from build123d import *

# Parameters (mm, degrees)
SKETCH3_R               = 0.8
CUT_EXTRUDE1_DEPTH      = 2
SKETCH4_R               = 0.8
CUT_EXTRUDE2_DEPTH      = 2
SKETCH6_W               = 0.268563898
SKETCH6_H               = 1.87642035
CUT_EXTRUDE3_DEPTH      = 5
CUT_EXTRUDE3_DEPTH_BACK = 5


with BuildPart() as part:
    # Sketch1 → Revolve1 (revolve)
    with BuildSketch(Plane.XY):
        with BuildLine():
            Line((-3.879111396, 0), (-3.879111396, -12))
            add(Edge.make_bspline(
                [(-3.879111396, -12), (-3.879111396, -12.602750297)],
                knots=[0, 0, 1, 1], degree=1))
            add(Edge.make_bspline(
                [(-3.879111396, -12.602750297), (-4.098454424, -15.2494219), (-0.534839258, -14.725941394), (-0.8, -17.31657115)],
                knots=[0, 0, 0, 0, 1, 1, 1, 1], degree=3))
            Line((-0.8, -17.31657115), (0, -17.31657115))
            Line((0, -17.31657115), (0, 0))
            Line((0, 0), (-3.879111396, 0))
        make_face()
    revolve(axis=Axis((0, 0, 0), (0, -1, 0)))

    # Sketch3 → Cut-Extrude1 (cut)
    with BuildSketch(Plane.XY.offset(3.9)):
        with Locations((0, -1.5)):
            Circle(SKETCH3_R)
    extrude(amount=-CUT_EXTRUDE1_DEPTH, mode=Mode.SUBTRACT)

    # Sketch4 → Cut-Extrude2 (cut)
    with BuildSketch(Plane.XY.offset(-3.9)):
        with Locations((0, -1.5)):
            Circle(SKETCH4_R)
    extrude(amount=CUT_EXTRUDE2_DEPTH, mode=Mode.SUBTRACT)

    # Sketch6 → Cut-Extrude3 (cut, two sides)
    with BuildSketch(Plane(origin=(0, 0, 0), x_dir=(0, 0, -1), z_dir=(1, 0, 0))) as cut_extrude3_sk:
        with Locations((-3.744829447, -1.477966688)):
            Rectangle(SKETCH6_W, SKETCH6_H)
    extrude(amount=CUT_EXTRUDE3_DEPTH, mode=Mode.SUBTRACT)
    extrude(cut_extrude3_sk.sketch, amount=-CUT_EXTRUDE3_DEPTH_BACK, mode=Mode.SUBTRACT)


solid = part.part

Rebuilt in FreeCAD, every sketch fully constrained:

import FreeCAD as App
import Part
import Sketcher

V = App.Vector

doc = App.newDocument("Part")
params = doc.addObject("Spreadsheet::Sheet", "Params")
for row, (alias, value) in enumerate([
    ("revolution_angle", "360 deg"),
    ("sketch2_diameter", "1.6 mm"),
    ("pocket1_length", "2 mm"),
    ("sketch3_diameter", "1.6 mm"),
    ("pocket2_length", "2 mm"),
], start=1):
    params.set(f"A{row}", alias)
    params.set(f"B{row}", "=" + value)
    params.setAlias(f"B{row}", alias)

body = doc.addObject("PartDesign::Body", "Body")

# Sketch on XY plane
sketch1 = doc.addObject("Sketcher::SketchObject", "Sketch")
body.addObject(sketch1)
sketch1.AttachmentSupport = (doc.XY_Plane, [""])
sketch1.MapMode = "FlatFace"
sketch1.addGeometry(Part.LineSegment(V(-3.879111, 0, 0), V(-3.879111, -12.60275, 0)), False)
sketch1.addGeometry(Part.BSplineCurve([V(-3.879111, -12.60275, 0), V(-4.098454, -15.249422, 0), V(-0.534839, -14.725941, 0), V(-0.8, -17.316571, 0)], [4, 4], [0, 1], False, 3, [1, 1, 1, 1], False), False)
sketch1.addGeometry(Part.LineSegment(V(-0.8, -17.316571, 0), V(0, -17.316571, 0)), False)
sketch1.addGeometry(Part.LineSegment(V(0, -17.316571, 0), V(0, 0, 0)), False)
sketch1.addGeometry(Part.LineSegment(V(0, 0, 0), V(-3.879111, 0, 0)), False)
sketch1.addConstraint(Sketcher.Constraint("Block", 1))
sketch1.addConstraint(Sketcher.Constraint("Coincident", 0, 2, 1, 1))
sketch1.addConstraint(Sketcher.Constraint("Coincident", 1, 2, 2, 1))
sketch1.addConstraint(Sketcher.Constraint("Coincident", 2, 2, 3, 1))
sketch1.addConstraint(Sketcher.Constraint("Coincident", 3, 2, 4, 1))
sketch1.addConstraint(Sketcher.Constraint("Coincident", 4, 2, 0, 1))
sketch1.addConstraint(Sketcher.Constraint("Vertical", 0))
sketch1.addConstraint(Sketcher.Constraint("Horizontal", 2))
sketch1.addConstraint(Sketcher.Constraint("Vertical", 3))
sketch1.addConstraint(Sketcher.Constraint("Horizontal", 4))
sketch1.addConstraint(Sketcher.Constraint("Coincident", 3, 2, -1, 1))
revolution = doc.addObject("PartDesign::Revolution", "Revolution")
body.addObject(revolution)
revolution.Profile = sketch1
revolution.ReferenceAxis = (sketch1, ["V_Axis"])
revolution.setExpression("Angle", "Params.revolution_angle")

# Sketch on XY plane
sketch2 = doc.addObject("Sketcher::SketchObject", "Sketch001")
body.addObject(sketch2)
sketch2.AttachmentSupport = (doc.XY_Plane, [""])
sketch2.MapMode = "FlatFace"
sketch2.AttachmentOffset = App.Placement(V(0, 0, 3.9), App.Rotation())
sketch2.addGeometry(Part.Circle(V(0, -1.5, 0), V(0, 0, 1), 0.8), False)
sketch2.addConstraint(Sketcher.Constraint("PointOnObject", 0, 3, -2))
sketch2.addConstraint(Sketcher.Constraint("Diameter", 0, 1.6))
sketch2.addConstraint(Sketcher.Constraint("DistanceY", 0, 3, -1, 1, 1.5))
sketch2.setExpression("Constraints[1]", "Params.sketch2_diameter")
pocket1 = doc.addObject("PartDesign::Pocket", "Pocket")
body.addObject(pocket1)
pocket1.Profile = sketch2
pocket1.setExpression("Length", "Params.pocket1_length")

# Sketch on XY plane
sketch3 = doc.addObject("Sketcher::SketchObject", "Sketch002")
body.addObject(sketch3)
sketch3.AttachmentSupport = (doc.XY_Plane, [""])
sketch3.MapMode = "FlatFace"
sketch3.AttachmentOffset = App.Placement(V(0, 0, -3.9), App.Rotation())
sketch3.addGeometry(Part.Circle(V(0, -1.5, 0), V(0, 0, 1), 0.8), False)
sketch3.addConstraint(Sketcher.Constraint("PointOnObject", 0, 3, -2))
sketch3.addConstraint(Sketcher.Constraint("Diameter", 0, 1.6))
sketch3.addConstraint(Sketcher.Constraint("DistanceY", 0, 3, -1, 1, 1.5))
sketch3.setExpression("Constraints[1]", "Params.sketch3_diameter")
pocket2 = doc.addObject("PartDesign::Pocket", "Pocket001")
body.addObject(pocket2)
pocket2.Profile = sketch3
pocket2.setExpression("Length", "Params.pocket2_length")
pocket2.Reversed = True

# Sketch on YZ plane
sketch4 = doc.addObject("Sketcher::SketchObject", "Sketch003")
body.addObject(sketch4)
sketch4.AttachmentSupport = (doc.YZ_Plane, [""])
sketch4.MapMode = "FlatFace"
sketch4.addGeometry(Part.LineSegment(V(-0.54, 3.88, 0), V(-2.42, 3.88, 0)), False)
sketch4.addGeometry(Part.LineSegment(V(-2.42, 3.88, 0), V(-2.42, 3.61, 0)), False)
sketch4.addGeometry(Part.LineSegment(V(-2.42, 3.61, 0), V(-0.54, 3.61, 0)), False)
sketch4.addGeometry(Part.LineSegment(V(-0.54, 3.61, 0), V(-0.54, 3.88, 0)), False)
sketch4.addConstraint(Sketcher.Constraint("Coincident", 0, 2, 1, 1))
sketch4.addConstraint(Sketcher.Constraint("Coincident", 1, 2, 2, 1))
sketch4.addConstraint(Sketcher.Constraint("Coincident", 2, 2, 3, 1))
sketch4.addConstraint(Sketcher.Constraint("Coincident", 3, 2, 0, 1))
sketch4.addConstraint(Sketcher.Constraint("Horizontal", 0))
sketch4.addConstraint(Sketcher.Constraint("Vertical", 1))
sketch4.addConstraint(Sketcher.Constraint("Horizontal", 2))
sketch4.addConstraint(Sketcher.Constraint("Vertical", 3))
sketch4.addConstraint(Sketcher.Constraint("DistanceX", 0, 2, 0, 1, 1.87642))
sketch4.addConstraint(Sketcher.Constraint("DistanceY", 1, 2, 1, 1, 0.268564))
sketch4.addConstraint(Sketcher.Constraint("DistanceY", -1, 1, 0, 2, 3.879111))
sketch4.addConstraint(Sketcher.Constraint("DistanceX", 0, 2, -1, 1, 2.416177))
pocket3 = doc.addObject("PartDesign::Pocket", "Pocket002")
body.addObject(pocket3)
pocket3.Profile = sketch4
pocket3.Type = "ThroughAll"
pocket3.Midplane = True

doc.recompute()
